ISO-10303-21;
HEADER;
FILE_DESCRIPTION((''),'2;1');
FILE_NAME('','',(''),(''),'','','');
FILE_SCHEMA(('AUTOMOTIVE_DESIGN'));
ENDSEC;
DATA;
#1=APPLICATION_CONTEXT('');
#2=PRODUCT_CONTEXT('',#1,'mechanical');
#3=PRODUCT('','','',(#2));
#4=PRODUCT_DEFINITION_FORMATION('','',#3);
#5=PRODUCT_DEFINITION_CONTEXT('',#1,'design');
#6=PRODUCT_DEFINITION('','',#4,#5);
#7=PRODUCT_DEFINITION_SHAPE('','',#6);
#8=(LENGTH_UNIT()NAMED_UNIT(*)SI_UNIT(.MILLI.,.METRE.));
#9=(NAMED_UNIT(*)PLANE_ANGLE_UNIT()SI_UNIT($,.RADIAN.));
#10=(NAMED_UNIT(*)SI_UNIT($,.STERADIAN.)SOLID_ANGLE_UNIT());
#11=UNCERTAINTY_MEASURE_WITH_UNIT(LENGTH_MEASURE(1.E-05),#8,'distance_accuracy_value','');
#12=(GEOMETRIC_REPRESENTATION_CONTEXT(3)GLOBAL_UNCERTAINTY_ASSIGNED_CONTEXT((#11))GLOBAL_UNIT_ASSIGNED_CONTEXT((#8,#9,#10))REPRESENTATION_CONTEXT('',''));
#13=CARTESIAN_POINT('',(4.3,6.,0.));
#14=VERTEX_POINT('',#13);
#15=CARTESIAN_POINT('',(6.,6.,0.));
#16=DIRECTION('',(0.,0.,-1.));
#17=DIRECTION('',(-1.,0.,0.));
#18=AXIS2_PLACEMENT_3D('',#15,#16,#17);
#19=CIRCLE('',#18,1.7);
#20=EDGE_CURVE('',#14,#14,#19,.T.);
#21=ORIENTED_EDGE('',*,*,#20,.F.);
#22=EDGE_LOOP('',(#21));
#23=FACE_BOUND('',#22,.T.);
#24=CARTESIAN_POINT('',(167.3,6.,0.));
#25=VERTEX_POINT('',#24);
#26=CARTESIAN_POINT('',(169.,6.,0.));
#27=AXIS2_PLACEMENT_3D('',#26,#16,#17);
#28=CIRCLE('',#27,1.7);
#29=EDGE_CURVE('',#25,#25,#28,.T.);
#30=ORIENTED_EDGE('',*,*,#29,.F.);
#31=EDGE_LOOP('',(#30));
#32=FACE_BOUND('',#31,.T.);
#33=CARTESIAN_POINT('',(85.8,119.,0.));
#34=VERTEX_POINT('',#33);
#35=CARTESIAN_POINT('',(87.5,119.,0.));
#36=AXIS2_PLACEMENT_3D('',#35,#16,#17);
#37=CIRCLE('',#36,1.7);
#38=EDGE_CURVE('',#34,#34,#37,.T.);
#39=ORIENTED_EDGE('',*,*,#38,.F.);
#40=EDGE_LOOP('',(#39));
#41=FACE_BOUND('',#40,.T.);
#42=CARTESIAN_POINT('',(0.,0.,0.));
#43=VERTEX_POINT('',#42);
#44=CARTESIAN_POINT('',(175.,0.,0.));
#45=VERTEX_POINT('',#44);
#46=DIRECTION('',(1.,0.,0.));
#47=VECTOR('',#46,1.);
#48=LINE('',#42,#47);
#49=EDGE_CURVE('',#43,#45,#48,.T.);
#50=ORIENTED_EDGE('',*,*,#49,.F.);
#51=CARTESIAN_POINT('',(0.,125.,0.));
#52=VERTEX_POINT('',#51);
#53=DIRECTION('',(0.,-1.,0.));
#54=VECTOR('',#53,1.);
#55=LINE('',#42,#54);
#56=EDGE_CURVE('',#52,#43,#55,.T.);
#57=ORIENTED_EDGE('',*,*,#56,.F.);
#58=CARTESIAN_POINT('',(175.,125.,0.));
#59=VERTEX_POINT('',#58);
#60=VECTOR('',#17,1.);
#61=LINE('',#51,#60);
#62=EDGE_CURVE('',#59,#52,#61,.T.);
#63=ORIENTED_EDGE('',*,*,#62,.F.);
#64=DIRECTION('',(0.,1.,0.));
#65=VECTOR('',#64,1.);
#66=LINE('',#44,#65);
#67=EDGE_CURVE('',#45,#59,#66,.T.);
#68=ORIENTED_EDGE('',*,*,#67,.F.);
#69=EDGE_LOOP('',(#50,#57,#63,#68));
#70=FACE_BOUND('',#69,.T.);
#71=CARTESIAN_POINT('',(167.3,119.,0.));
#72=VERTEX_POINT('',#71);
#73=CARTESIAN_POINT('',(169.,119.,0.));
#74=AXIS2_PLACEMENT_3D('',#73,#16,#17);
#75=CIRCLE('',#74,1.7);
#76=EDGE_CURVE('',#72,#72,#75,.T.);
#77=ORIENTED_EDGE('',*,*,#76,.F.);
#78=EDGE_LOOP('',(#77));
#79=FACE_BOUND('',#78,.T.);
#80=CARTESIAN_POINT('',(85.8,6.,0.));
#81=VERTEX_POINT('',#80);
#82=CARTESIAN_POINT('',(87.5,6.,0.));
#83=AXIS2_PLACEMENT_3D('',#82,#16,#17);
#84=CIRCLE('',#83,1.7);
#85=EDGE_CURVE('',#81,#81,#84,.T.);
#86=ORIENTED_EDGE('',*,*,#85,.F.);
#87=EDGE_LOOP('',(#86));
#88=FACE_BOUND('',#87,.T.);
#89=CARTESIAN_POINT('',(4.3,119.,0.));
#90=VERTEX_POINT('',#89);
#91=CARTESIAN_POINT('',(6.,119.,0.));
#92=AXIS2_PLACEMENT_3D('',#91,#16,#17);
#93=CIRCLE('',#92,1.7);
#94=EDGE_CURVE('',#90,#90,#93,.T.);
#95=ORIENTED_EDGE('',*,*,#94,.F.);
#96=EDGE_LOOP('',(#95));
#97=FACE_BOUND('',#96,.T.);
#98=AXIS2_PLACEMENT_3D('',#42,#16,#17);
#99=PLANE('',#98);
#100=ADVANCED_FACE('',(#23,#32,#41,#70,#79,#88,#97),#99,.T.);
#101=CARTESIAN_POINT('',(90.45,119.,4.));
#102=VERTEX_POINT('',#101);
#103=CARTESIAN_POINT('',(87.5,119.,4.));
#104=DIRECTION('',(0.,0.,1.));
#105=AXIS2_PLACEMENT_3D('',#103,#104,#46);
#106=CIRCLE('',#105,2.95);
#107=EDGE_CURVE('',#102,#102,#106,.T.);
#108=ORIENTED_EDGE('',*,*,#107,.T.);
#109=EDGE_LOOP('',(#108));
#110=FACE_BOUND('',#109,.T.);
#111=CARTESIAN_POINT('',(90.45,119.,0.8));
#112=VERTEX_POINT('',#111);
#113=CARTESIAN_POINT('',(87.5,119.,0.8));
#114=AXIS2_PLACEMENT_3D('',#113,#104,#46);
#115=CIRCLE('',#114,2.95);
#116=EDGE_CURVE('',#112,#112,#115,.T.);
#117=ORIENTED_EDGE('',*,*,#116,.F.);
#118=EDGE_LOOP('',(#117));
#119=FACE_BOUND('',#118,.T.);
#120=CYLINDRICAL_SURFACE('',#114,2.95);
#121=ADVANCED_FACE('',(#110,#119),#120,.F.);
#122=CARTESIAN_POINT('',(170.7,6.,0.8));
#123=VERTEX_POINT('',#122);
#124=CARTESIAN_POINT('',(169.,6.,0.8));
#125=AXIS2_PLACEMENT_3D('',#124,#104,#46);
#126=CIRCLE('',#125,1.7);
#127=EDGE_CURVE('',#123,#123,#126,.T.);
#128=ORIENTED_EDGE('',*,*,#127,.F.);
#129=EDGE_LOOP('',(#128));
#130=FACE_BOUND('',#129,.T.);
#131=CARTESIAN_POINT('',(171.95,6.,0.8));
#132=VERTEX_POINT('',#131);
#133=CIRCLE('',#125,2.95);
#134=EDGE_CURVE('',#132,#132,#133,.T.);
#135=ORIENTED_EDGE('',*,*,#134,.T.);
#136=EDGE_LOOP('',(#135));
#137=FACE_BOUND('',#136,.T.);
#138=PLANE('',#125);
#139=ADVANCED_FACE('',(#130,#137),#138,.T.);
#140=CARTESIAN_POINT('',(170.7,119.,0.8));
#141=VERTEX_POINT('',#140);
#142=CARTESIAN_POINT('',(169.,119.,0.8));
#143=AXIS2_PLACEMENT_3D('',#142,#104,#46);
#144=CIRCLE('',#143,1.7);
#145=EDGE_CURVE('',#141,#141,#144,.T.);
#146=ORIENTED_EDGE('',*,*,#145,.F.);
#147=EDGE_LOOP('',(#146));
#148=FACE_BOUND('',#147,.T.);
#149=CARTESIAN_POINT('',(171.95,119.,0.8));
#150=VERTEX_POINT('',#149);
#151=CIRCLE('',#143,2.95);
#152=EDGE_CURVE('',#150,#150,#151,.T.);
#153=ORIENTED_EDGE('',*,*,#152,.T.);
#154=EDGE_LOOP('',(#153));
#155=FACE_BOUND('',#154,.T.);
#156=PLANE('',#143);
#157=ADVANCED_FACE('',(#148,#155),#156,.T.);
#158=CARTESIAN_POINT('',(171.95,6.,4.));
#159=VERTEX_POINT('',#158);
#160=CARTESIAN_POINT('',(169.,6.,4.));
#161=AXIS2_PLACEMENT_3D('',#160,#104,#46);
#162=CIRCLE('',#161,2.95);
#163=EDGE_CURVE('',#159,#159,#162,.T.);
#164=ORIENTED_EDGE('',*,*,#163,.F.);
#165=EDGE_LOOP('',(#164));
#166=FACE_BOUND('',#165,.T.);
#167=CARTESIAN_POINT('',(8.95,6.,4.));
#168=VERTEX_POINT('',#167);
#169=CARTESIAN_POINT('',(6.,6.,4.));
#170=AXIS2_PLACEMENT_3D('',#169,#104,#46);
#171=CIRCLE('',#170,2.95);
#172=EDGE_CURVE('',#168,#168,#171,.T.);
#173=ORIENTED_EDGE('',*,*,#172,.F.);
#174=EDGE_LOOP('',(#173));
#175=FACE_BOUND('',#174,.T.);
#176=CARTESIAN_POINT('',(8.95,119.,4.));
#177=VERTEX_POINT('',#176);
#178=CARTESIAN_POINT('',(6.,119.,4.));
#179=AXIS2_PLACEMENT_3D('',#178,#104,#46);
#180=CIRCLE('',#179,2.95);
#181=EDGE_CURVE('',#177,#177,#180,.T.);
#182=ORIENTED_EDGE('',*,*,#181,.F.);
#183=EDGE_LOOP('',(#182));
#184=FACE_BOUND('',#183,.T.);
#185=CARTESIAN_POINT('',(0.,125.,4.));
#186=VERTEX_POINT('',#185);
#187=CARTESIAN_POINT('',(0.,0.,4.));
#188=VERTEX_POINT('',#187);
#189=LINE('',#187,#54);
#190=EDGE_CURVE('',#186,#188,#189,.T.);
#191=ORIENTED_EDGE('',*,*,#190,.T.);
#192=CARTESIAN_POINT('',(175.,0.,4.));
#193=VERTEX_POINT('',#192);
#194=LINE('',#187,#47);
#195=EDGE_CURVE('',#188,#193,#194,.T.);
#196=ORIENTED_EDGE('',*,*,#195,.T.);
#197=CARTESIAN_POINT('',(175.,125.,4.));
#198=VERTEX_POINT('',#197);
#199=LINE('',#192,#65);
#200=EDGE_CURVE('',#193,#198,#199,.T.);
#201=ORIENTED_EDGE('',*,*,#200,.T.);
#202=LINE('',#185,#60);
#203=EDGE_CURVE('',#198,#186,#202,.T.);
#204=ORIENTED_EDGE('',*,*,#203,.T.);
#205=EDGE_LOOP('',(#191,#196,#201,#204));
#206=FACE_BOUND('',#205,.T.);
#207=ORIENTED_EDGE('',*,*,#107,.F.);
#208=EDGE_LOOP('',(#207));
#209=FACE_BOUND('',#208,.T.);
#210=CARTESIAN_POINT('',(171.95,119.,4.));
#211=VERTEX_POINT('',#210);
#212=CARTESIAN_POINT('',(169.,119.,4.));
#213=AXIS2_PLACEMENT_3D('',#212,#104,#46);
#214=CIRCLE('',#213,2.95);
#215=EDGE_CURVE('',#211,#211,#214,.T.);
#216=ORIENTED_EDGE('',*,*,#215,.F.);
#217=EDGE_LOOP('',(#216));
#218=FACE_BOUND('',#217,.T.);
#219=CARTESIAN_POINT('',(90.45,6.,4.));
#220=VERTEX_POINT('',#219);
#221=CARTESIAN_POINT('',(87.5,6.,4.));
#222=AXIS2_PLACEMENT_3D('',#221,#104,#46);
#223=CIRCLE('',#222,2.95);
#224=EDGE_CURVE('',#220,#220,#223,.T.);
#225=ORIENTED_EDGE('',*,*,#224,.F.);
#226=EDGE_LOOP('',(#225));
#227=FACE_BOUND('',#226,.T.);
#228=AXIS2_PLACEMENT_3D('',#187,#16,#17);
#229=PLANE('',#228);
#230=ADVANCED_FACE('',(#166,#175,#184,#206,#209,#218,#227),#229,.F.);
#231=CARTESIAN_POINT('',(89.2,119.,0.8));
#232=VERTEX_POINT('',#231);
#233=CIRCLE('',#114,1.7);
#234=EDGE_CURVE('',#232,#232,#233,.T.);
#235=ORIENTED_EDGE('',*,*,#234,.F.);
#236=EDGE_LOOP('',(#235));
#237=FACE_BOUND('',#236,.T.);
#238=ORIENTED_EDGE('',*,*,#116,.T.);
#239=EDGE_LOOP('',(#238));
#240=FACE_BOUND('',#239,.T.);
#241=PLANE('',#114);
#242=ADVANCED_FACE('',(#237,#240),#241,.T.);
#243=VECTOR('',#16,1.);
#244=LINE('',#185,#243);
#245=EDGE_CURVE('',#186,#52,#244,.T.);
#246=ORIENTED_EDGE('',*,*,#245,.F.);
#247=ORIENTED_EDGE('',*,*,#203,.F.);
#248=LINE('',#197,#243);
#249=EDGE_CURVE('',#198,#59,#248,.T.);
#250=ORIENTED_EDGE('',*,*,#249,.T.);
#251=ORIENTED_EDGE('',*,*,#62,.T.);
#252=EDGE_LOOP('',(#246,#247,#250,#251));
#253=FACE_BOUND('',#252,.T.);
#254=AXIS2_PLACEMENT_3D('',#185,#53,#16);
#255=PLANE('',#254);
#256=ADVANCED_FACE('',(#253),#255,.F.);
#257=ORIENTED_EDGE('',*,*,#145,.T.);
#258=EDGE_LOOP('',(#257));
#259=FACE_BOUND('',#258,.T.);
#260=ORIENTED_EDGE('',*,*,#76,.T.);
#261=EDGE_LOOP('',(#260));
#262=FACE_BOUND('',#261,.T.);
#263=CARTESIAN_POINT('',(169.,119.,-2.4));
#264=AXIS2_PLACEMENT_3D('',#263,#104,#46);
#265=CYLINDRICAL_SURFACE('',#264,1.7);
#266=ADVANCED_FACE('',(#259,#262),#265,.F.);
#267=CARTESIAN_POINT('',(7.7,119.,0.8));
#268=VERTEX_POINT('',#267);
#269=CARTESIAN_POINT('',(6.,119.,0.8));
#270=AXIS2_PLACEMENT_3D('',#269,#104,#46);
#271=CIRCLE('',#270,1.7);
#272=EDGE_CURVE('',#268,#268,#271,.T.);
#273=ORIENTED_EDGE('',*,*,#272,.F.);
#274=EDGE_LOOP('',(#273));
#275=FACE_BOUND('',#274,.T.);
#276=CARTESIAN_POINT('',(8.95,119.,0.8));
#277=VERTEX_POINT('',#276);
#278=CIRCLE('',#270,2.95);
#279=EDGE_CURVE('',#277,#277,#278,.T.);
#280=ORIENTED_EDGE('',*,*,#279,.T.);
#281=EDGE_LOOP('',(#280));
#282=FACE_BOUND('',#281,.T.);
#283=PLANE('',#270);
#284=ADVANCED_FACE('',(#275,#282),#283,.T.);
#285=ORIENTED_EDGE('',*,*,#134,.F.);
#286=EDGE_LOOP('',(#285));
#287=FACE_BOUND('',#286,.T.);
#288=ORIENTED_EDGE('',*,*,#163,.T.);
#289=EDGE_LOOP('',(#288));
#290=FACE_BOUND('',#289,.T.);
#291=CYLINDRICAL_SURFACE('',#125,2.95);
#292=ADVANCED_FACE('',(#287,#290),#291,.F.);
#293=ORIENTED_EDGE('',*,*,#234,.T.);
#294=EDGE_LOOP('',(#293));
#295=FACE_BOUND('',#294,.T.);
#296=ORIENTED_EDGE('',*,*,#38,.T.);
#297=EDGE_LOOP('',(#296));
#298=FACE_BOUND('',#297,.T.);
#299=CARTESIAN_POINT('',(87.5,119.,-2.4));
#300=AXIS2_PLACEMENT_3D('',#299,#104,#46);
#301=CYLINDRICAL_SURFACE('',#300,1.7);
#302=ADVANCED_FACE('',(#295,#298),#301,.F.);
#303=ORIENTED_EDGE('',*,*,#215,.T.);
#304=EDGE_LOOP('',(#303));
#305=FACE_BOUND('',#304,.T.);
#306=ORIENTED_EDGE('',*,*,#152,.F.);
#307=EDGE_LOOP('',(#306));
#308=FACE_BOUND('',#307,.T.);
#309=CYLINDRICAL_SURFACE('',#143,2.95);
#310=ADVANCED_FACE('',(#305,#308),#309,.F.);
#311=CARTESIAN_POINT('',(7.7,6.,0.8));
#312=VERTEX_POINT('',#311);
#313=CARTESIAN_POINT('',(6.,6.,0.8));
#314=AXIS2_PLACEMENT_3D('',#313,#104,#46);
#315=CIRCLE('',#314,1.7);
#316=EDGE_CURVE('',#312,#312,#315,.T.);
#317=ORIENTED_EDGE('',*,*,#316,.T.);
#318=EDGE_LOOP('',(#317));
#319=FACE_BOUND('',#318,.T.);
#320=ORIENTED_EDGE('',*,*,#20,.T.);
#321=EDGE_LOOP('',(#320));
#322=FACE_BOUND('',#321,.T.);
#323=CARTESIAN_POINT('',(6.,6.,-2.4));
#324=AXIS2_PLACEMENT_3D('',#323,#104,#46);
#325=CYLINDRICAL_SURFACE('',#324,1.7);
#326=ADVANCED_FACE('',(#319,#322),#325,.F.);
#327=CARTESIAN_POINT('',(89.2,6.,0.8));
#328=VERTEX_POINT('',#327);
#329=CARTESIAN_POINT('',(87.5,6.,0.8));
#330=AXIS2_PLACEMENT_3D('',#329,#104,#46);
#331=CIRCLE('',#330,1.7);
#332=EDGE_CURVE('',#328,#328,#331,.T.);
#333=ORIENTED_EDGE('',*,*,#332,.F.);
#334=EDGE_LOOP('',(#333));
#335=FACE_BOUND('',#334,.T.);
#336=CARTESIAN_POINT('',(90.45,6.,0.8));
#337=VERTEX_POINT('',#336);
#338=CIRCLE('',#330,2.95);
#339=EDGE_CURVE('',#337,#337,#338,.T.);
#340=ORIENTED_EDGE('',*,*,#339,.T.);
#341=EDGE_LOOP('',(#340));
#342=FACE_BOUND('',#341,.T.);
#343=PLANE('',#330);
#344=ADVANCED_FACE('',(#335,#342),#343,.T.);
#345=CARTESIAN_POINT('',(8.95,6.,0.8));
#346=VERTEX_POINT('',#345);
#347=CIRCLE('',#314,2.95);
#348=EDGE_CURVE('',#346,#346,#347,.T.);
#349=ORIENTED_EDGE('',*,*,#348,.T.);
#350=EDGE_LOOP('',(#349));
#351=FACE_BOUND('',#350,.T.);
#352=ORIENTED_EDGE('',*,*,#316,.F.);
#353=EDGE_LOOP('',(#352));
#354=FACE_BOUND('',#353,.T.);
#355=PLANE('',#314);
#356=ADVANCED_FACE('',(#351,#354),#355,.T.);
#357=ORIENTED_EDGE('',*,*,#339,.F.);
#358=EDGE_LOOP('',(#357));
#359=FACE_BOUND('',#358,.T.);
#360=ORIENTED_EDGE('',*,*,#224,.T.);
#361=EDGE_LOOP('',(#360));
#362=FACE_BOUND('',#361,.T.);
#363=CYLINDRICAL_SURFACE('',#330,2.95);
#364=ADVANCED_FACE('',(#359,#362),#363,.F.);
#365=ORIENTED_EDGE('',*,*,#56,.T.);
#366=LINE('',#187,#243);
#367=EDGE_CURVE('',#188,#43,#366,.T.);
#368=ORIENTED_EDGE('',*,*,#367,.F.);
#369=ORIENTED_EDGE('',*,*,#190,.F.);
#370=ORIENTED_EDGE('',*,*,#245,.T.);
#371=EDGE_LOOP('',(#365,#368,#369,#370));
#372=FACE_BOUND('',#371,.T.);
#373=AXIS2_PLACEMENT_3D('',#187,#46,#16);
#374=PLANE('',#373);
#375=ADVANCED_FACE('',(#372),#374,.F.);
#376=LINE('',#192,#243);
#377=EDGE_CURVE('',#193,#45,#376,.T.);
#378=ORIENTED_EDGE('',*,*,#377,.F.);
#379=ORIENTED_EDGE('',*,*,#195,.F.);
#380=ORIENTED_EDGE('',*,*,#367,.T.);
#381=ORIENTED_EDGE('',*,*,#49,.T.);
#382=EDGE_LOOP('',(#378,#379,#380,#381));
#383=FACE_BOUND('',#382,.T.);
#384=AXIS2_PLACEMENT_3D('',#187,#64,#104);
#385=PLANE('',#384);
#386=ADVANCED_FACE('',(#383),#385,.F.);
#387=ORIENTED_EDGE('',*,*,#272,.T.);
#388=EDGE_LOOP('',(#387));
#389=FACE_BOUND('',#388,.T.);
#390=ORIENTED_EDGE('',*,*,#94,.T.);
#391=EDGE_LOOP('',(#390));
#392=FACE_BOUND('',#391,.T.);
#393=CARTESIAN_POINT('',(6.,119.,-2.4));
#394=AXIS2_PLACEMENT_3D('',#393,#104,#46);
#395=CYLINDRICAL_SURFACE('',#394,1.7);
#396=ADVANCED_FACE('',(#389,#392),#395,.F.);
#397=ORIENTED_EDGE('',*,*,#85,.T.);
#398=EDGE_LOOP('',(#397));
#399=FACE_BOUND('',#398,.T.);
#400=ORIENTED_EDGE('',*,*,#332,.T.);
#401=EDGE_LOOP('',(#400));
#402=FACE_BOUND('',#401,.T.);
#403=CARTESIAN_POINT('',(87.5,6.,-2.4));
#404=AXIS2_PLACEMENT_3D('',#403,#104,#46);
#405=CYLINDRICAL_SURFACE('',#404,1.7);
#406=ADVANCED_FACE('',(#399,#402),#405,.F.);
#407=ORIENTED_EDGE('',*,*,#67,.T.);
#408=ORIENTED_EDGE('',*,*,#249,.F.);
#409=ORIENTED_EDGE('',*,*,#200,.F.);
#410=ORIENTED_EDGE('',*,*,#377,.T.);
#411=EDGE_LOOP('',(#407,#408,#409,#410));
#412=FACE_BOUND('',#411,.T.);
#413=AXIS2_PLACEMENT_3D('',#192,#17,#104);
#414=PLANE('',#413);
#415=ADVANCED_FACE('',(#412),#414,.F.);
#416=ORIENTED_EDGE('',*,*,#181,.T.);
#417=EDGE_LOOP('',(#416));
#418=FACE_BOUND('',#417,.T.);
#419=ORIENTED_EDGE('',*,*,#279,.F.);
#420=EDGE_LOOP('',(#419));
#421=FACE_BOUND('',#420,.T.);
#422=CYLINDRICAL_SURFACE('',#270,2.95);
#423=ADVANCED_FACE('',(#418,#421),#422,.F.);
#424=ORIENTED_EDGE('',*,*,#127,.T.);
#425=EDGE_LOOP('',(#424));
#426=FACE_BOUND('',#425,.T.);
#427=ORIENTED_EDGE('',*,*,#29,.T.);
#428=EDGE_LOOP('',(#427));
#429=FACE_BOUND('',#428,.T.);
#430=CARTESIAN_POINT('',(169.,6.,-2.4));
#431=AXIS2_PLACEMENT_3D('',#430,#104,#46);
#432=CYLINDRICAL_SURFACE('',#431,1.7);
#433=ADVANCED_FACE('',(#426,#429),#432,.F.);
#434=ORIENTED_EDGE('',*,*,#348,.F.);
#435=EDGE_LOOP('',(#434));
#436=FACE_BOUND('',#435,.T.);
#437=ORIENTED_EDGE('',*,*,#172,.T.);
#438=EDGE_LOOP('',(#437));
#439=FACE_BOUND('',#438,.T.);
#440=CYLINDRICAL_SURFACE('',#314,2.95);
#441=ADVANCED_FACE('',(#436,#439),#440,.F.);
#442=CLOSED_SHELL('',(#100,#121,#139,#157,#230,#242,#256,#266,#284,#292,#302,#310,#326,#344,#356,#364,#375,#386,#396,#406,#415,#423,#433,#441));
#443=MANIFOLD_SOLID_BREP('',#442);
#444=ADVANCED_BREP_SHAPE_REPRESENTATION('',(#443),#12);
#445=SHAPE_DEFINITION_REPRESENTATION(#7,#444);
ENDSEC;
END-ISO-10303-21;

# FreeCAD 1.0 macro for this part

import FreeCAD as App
import Part
import Sketcher

V = App.Vector
Q = App.Units.Quantity

doc = App.newDocument("Part")
body = doc.addObject("PartDesign::Body", "Body")

sketch1 = body.newObject("Sketcher::SketchObject", "Sketch")
sketch1.AttachmentSupport = (doc.getObject("XY_Plane"), [""])
sketch1.MapMode = "FlatFace"
sketch1.addGeometry(Part.LineSegment(V(0, 125, 0), V(0, 0, 0)), False)
sketch1.addGeometry(Part.LineSegment(V(0, 0, 0), V(175, 0, 0)), False)
sketch1.addGeometry(Part.LineSegment(V(175, 0, 0), V(175, 125, 0)), False)
sketch1.addGeometry(Part.LineSegment(V(175, 125, 0), V(0, 125, 0)), False)
sketch1.addConstraint(Sketcher.Constraint("Coincident", 0, 2, 1, 1))
sketch1.addConstraint(Sketcher.Constraint("Coincident", 1, 2, 2, 1))
sketch1.addConstraint(Sketcher.Constraint("Coincident", 2, 2, 3, 1))
sketch1.addConstraint(Sketcher.Constraint("Coincident", 3, 2, 0, 1))
sketch1.addConstraint(Sketcher.Constraint("Vertical", 0))
sketch1.addConstraint(Sketcher.Constraint("Horizontal", 1))
sketch1.addConstraint(Sketcher.Constraint("Vertical", 2))
sketch1.addConstraint(Sketcher.Constraint("Horizontal", 3))
sketch1.addConstraint(Sketcher.Constraint("Coincident", 0, 2, -1, 1))
sketch1.addConstraint(Sketcher.Constraint("DistanceX", 1, 1, 1, 2, Q("175 mm")))
sketch1.addConstraint(Sketcher.Constraint("DistanceY", 0, 2, 0, 1, Q("125 mm")))
pad1 = body.newObject("PartDesign::Pad", "Pad")
pad1.Profile = sketch1
pad1.Length = 4

sketch2 = body.newObject("Sketcher::SketchObject", "Sketch001")
sketch2.AttachmentSupport = (doc.getObject("XY_Plane"), [""])
sketch2.MapMode = "FlatFace"
sketch2.AttachmentOffset = App.Placement(V(0, 0, 4), App.Rotation())
sketch2.addGeometry(Part.Circle(V(6, 119, 0), V(0, 0, 1), 3), False)
sketch2.addGeometry(Part.Circle(V(169, 119, 0), V(0, 0, 1), 3), False)
sketch2.addGeometry(Part.Circle(V(6, 6, 0), V(0, 0, 1), 3), False)
sketch2.addGeometry(Part.Circle(V(169, 6, 0), V(0, 0, 1), 3), False)
sketch2.addGeometry(Part.Circle(V(87.5, 119, 0), V(0, 0, 1), 3), False)
sketch2.addGeometry(Part.Circle(V(87.5, 6, 0), V(0, 0, 1), 3), False)
sketch2.addConstraint(Sketcher.Constraint("Equal", 0, 1))
sketch2.addConstraint(Sketcher.Constraint("Equal", 1, 2))
sketch2.addConstraint(Sketcher.Constraint("Equal", 2, 3))
sketch2.addConstraint(Sketcher.Constraint("Equal", 3, 4))
sketch2.addConstraint(Sketcher.Constraint("Equal", 4, 5))
sketch2.addConstraint(Sketcher.Constraint("Horizontal", 0, 3, 1, 3))
sketch2.addConstraint(Sketcher.Constraint("Horizontal", 2, 3, 3, 3))
sketch2.addConstraint(Sketcher.Constraint("Horizontal", 1, 3, 4, 3))
sketch2.addConstraint(Sketcher.Constraint("Horizontal", 3, 3, 5, 3))
sketch2.addConstraint(Sketcher.Constraint("Vertical", 0, 3, 2, 3))
sketch2.addConstraint(Sketcher.Constraint("Vertical", 1, 3, 3, 3))
sketch2.addConstraint(Sketcher.Constraint("Vertical", 4, 3, 5, 3))
sketch2.addConstraint(Sketcher.Constraint("Diameter", 0, Q("5.9 mm")))
sketch2.addConstraint(Sketcher.Constraint("DistanceX", -1, 1, 0, 3, Q("6 mm")))
sketch2.addConstraint(Sketcher.Constraint("DistanceY", -1, 1, 0, 3, Q("119 mm")))
sketch2.addConstraint(Sketcher.Constraint("DistanceX", -1, 1, 1, 3, Q("169 mm")))
sketch2.addConstraint(Sketcher.Constraint("DistanceY", -1, 1, 2, 3, Q("6 mm")))
sketch2.addConstraint(Sketcher.Constraint("DistanceX", -1, 1, 4, 3, Q("87.5 mm")))
pocket1 = body.newObject("PartDesign::Pocket", "Pocket")
pocket1.Profile = sketch2
pocket1.Length = 3.2

sketch3 = body.newObject("Sketcher::SketchObject", "Sketch002")
sketch3.AttachmentSupport = (doc.getObject("XY_Plane"), [""])
sketch3.MapMode = "FlatFace"
sketch3.AttachmentOffset = App.Placement(V(0, 0, 0.8), App.Rotation())
sketch3.addGeometry(Part.Circle(V(6, 119, 0), V(0, 0, 1), 1.7), False)
sketch3.addGeometry(Part.Circle(V(87.5, 119, 0), V(0, 0, 1), 1.7), False)
sketch3.addGeometry(Part.Circle(V(169, 119, 0), V(0, 0, 1), 1.7), False)
sketch3.addGeometry(Part.Circle(V(169, 6, 0), V(0, 0, 1), 1.7), False)
sketch3.addGeometry(Part.Circle(V(87.5, 6, 0), V(0, 0, 1), 1.7), False)
sketch3.addGeometry(Part.Circle(V(6, 6, 0), V(0, 0, 1), 1.7), False)
sketch3.addConstraint(Sketcher.Constraint("Equal", 0, 1))
sketch3.addConstraint(Sketcher.Constraint("Equal", 1, 2))
sketch3.addConstraint(Sketcher.Constraint("Equal", 2, 3))
sketch3.addConstraint(Sketcher.Constraint("Equal", 3, 4))
sketch3.addConstraint(Sketcher.Constraint("Equal", 4, 5))
sketch3.addConstraint(Sketcher.Constraint("Horizontal", 0, 3, 1, 3))
sketch3.addConstraint(Sketcher.Constraint("Horizontal", 1, 3, 2, 3))
sketch3.addConstraint(Sketcher.Constraint("Horizontal", 3, 3, 4, 3))
sketch3.addConstraint(Sketcher.Constraint("Horizontal", 4, 3, 5, 3))
sketch3.addConstraint(Sketcher.Constraint("Vertical", 2, 3, 3, 3))
sketch3.addConstraint(Sketcher.Constraint("Vertical", 1, 3, 4, 3))
sketch3.addConstraint(Sketcher.Constraint("Vertical", 0, 3, 5, 3))
sketch3.addConstraint(Sketcher.Constraint("Diameter", 0, Q("3.4 mm")))
sketch3.addConstraint(Sketcher.Constraint("DistanceX", -1, 1, 0, 3, Q("6 mm")))
sketch3.addConstraint(Sketcher.Constraint("DistanceY", -1, 1, 0, 3, Q("119 mm")))
sketch3.addConstraint(Sketcher.Constraint("DistanceX", -1, 1, 2, 3, Q("169 mm")))
sketch3.addConstraint(Sketcher.Constraint("DistanceY", -1, 1, 3, 3, Q("6 mm")))
sketch3.addConstraint(Sketcher.Constraint("DistanceX", -1, 1, 1, 3, Q("87.5 mm")))
pocket2 = body.newObject("PartDesign::Pocket", "Pocket001")
pocket2.Profile = sketch3
pocket2.Length = 3.2

doc.recompute()
